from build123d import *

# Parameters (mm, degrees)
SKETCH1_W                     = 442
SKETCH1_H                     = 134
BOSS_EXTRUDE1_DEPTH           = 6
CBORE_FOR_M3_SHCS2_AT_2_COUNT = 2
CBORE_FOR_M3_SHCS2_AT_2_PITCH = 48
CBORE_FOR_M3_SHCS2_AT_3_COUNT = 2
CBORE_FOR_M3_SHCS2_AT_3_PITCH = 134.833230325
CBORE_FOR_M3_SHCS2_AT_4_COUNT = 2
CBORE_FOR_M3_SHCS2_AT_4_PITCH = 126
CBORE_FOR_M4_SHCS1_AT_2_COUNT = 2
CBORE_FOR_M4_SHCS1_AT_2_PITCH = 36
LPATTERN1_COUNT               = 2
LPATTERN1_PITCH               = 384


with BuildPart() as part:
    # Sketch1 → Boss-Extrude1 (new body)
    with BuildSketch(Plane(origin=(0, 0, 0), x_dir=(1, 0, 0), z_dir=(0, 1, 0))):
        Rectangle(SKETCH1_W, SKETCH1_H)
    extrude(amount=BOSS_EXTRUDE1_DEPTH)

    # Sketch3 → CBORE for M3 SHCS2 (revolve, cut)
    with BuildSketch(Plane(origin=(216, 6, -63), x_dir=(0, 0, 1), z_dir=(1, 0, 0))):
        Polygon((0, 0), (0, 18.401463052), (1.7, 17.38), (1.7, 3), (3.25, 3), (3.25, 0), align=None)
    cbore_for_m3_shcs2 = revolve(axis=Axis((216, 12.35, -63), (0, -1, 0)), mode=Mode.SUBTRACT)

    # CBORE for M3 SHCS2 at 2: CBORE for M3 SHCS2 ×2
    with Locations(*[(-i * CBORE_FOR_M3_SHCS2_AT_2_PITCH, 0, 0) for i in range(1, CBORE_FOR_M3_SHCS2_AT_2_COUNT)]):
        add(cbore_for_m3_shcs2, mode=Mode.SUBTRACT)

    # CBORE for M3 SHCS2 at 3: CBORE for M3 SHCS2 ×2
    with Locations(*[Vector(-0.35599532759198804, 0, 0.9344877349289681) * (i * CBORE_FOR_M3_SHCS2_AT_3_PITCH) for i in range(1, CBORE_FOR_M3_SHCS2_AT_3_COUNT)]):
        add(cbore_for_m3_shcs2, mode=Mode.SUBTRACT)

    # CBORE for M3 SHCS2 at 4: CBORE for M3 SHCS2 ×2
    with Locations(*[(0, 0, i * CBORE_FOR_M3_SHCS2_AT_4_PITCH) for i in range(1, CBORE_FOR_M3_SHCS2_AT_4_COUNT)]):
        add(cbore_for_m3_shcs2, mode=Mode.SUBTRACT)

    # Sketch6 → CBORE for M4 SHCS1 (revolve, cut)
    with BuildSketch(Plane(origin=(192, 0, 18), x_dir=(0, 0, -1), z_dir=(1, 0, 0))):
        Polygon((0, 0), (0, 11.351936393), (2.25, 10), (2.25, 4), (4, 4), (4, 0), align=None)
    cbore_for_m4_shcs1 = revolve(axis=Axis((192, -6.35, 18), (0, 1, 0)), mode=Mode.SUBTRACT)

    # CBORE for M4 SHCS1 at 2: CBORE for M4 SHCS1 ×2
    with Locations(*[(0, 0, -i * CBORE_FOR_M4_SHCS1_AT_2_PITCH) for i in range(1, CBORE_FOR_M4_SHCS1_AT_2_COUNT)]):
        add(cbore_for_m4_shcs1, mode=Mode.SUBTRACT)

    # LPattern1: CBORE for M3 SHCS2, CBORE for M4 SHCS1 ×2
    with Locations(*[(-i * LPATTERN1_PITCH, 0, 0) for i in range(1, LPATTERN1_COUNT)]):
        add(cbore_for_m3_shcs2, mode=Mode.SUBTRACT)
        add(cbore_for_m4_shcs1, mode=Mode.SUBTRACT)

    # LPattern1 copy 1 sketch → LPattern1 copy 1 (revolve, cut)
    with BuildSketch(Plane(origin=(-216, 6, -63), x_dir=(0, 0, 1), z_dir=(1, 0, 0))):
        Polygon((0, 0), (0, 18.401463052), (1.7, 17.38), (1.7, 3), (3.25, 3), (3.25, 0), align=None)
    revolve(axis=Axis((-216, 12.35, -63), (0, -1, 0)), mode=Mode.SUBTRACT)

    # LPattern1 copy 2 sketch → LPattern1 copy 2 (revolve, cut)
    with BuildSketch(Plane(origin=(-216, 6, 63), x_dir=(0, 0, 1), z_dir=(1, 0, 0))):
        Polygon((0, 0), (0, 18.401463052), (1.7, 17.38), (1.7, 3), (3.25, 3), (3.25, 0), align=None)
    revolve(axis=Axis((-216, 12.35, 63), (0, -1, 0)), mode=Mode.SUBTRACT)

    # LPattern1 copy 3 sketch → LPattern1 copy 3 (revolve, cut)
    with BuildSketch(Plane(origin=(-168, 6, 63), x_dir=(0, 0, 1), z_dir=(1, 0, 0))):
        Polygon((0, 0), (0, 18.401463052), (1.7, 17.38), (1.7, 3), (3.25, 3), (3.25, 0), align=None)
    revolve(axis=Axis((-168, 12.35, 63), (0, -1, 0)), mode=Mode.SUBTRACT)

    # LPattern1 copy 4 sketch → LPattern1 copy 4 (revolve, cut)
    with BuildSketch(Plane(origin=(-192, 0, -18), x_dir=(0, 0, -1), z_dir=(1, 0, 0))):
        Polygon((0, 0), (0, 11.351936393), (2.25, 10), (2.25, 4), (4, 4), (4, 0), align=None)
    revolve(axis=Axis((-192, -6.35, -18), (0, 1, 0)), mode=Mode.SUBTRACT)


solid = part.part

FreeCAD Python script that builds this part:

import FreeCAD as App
import Part
import Sketcher
Q = App.Units.Quantity

doc = App.newDocument("Part")
params = doc.addObject("Spreadsheet::Sheet", "Params")
for row, (alias, value) in enumerate([
    ("sketch1_width", "442 mm"),
    ("sketch1_height", "134 mm"),
    ("pad1_length", "6 mm"),
    ("sketch2_width", "3 mm"),
    ("sketch2_width2", "14.38 mm"),
    ("sketch2_height", "3.25 mm"),
    ("sketch2_height2", "1.55 mm"),
    ("groove_angle", "360 deg"),
    ("linearpattern_pitch", "48 mm"),
    ("linearpattern2_pitch", "134.83323 mm"),
    ("linearpattern3_pitch", "126 mm"),
    ("sketch3_width", "4 mm"),
    ("sketch3_width2", "6 mm"),
    ("sketch3_height", "1.75 mm"),
    ("groove2_angle", "360 deg"),
    ("linearpattern4_pitch", "36 mm"),
    ("linearpattern5_pitch", "384 mm"),
    ("sketch4_width", "3 mm"),
    ("sketch4_width2", "14.38 mm"),
    ("sketch4_height", "3.25 mm"),
    ("sketch4_height2", "1.55 mm"),
    ("groove3_angle", "360 deg"),
    ("sketch5_width", "3 mm"),
    ("sketch5_width2", "14.38 mm"),
    ("sketch5_height", "3.25 mm"),
    ("sketch5_height2", "1.55 mm"),
    ("groove4_angle", "360 deg"),
    ("sketch6_width", "3 mm"),
    ("sketch6_width2", "14.38 mm"),
    ("sketch6_height", "3.25 mm"),
    ("sketch6_height2", "1.55 mm"),
    ("groove5_angle", "360 deg"),
    ("sketch7_width", "4 mm"),
    ("sketch7_width2", "6 mm"),
    ("sketch7_height", "1.75 mm"),
    ("groove6_angle", "360 deg"),
], start=1):
    params.set(f"A{row}", alias)
    params.set(f"B{row}", "=" + value)
    params.setAlias(f"B{row}", alias)

body = doc.addObject("PartDesign::Body", "Body")

sketch1 = doc.addObject("Sketcher::SketchObject", "Sketch")
body.addObject(sketch1)
sketch1.AttachmentSupport = (doc.XZ_Plane, [""])
sketch1.MapMode = "FlatFace"
sketch1.addGeometry([
    Part.LineSegment(App.Vector(-221, -67, 0), App.Vector(-221, 67, 0)),
    Part.LineSegment(App.Vector(-221, 67, 0), App.Vector(221, 67, 0)),
    Part.LineSegment(App.Vector(221, 67, 0), App.Vector(221, -67, 0)),
    Part.LineSegment(App.Vector(221, -67, 0), App.Vector(-221, -67, 0)),
], False)
sketch1.addConstraint([
    Sketcher.Constraint("Coincident", 0, 2, 1, 1),
    Sketcher.Constraint("Coincident", 1, 2, 2, 1),
    Sketcher.Constraint("Coincident", 2, 2, 3, 1),
    Sketcher.Constraint("Coincident", 3, 2, 0, 1),
    Sketcher.Constraint("Vertical", 0),
    Sketcher.Constraint("Horizontal", 1),
    Sketcher.Constraint("Vertical", 2),
    Sketcher.Constraint("Horizontal", 3),
    Sketcher.Constraint("Symmetric", 0, 2, 2, 2, -1, 1),
    Sketcher.Constraint("DistanceX", 1, 1, 1, 2, Q("442 mm")),
    Sketcher.Constraint("DistanceY", 0, 1, 0, 2, Q("134 mm")),
])
sketch1.setExpression("Constraints[9]", "Params.sketch1_width")
sketch1.setExpression("Constraints[10]", "Params.sketch1_height")
pad1 = doc.addObject("PartDesign::Pad", "Pad")
body.addObject(pad1)
pad1.Profile = sketch1
pad1.setExpression("Length", "Params.pad1_length")
pad1.Reversed = True

sketch2 = doc.addObject("Sketcher::SketchObject", "Sketch001")
body.addObject(sketch2)
sketch2.AttachmentSupport = (doc.YZ_Plane, [""])
sketch2.MapMode = "FlatFace"
sketch2.AttachmentOffset = App.Placement(App.Vector(0, 0, 216), App.Rotation())
sketch2.addGeometry([
    Part.LineSegment(App.Vector(-12.4, -63, 0), App.Vector(6, -63, 0)),
    Part.LineSegment(App.Vector(6, -63, 0), App.Vector(6, -59.8, 0)),
    Part.LineSegment(App.Vector(6, -59.8, 0), App.Vector(3, -59.8, 0)),
    Part.LineSegment(App.Vector(3, -59.8, 0), App.Vector(3, -61.3, 0)),
    Part.LineSegment(App.Vector(3, -61.3, 0), App.Vector(-11.4, -61.3, 0)),
    Part.LineSegment(App.Vector(-11.4, -61.3, 0), App.Vector(-12.4, -63, 0)),
], False)
sketch2.addGeometry(Part.LineSegment(App.Vector(6, -63, 0), App.Vector(-12.4, -63, 0)), True)
sketch2.addConstraint([
    Sketcher.Constraint("Coincident", 0, 2, 1, 1),
    Sketcher.Constraint("Coincident", 1, 2, 2, 1),
    Sketcher.Constraint("Coincident", 2, 2, 3, 1),
    Sketcher.Constraint("Coincident", 3, 2, 4, 1),
    Sketcher.Constraint("Coincident", 4, 2, 5, 1),
    Sketcher.Constraint("Coincident", 5, 2, 0, 1),
    Sketcher.Constraint("Horizontal", 0),
    Sketcher.Constraint("Vertical", 1),
    Sketcher.Constraint("Horizontal", 2),
    Sketcher.Constraint("Vertical", 3),
    Sketcher.Constraint("Horizontal", 4),
    Sketcher.Constraint("Horizontal", 6),
    Sketcher.Constraint("Coincident", 6, 1, 0, 2),
    Sketcher.Constraint("Equal", 0, 6),
    Sketcher.Constraint("DistanceX", 2, 2, 2, 1, Q("3 mm")),
    Sketcher.Constraint("Angle", 5, Q("-121 deg")),
    Sketcher.Constraint("DistanceX", -1, 1, 0, 2, Q("6 mm")),
    Sketcher.Constraint("DistanceY", 0, 2, -1, 1, Q("63 mm")),
    Sketcher.Constraint("DistanceX", 4, 2, 4, 1, Q("14.38 mm")),
    Sketcher.Constraint("DistanceY", 1, 1, 1, 2, Q("3.25 mm")),
    Sketcher.Constraint("DistanceY", 3, 2, 3, 1, Q("1.55 mm")),
])
sketch2.setExpression("Constraints[14]", "Params.sketch2_width")
sketch2.setExpression("Constraints[18]", "Params.sketch2_width2")
sketch2.setExpression("Constraints[19]", "Params.sketch2_height")
sketch2.setExpression("Constraints[20]", "Params.sketch2_height2")
groove = doc.addObject("PartDesign::Groove", "Groove")
body.addObject(groove)
groove.Profile = sketch2
groove.ReferenceAxis = (sketch2, ["Axis0"])
groove.setExpression("Angle", "Params.groove_angle")
doc.recompute()

linearpattern = doc.addObject("PartDesign::LinearPattern", "LinearPattern")
body.addObject(linearpattern)
linearpattern.Originals = [groove]
linearpattern.Direction = (doc.X_Axis, [""])
linearpattern.Mode = "offset"
linearpattern.setExpression("Offset", "Params.linearpattern_pitch")
linearpattern.Occurrences = 2
linearpattern.Reversed = True
body.Tip = linearpattern
doc.recompute()

datumline = doc.addObject("PartDesign::Line", "DatumLine")
body.addObject(datumline)
datumline.Placement = App.Placement(App.Vector(0, 0, 0), App.Rotation(App.Vector(0, 0, 1), App.Vector(-0.355995328, 0, 0.934487735)))
linearpattern2 = doc.addObject("PartDesign::LinearPattern", "LinearPattern001")
body.addObject(linearpattern2)
linearpattern2.Originals = [groove]
linearpattern2.Direction = (datumline, [""])
linearpattern2.Mode = "offset"
linearpattern2.setExpression("Offset", "Params.linearpattern2_pitch")
linearpattern2.Occurrences = 2
body.Tip = linearpattern2
doc.recompute()

linearpattern3 = doc.addObject("PartDesign::LinearPattern", "LinearPattern002")
body.addObject(linearpattern3)
linearpattern3.Originals = [groove]
linearpattern3.Direction = (doc.Z_Axis, [""])
linearpattern3.Mode = "offset"
linearpattern3.setExpression("Offset", "Params.linearpattern3_pitch")
linearpattern3.Occurrences = 2
body.Tip = linearpattern3

sketch3 = doc.addObject("Sketcher::SketchObject", "Sketch002")
body.addObject(sketch3)
sketch3.AttachmentSupport = (doc.YZ_Plane, [""])
sketch3.MapMode = "FlatFace"
sketch3.AttachmentOffset = App.Placement(App.Vector(0, 0, 192), App.Rotation())
sketch3.addGeometry([
    Part.LineSegment(App.Vector(11.4, 18, 0), App.Vector(0, 18, 0)),
    Part.LineSegment(App.Vector(0, 18, 0), App.Vector(0, 14, 0)),
    Part.LineSegment(App.Vector(0, 14, 0), App.Vector(4, 14, 0)),
    Part.LineSegment(App.Vector(4, 14, 0), App.Vector(4, 15.8, 0)),
    Part.LineSegment(App.Vector(4, 15.8, 0), App.Vector(10, 15.8, 0)),
    Part.LineSegment(App.Vector(10, 15.8, 0), App.Vector(11.4, 18, 0)),
], False)
sketch3.addGeometry(Part.LineSegment(App.Vector(0, 18, 0), App.Vector(11.4, 18, 0)), True)
sketch3.addConstraint([
    Sketcher.Constraint("Coincident", 0, 2, 1, 1),
    Sketcher.Constraint("Coincident", 1, 2, 2, 1),
    Sketcher.Constraint("Coincident", 2, 2, 3, 1),
    Sketcher.Constraint("Coincident", 3, 2, 4, 1),
    Sketcher.Constraint("Coincident", 4, 2, 5, 1),
    Sketcher.Constraint("Coincident", 5, 2, 0, 1),
    Sketcher.Constraint("Horizontal", 0),
    Sketcher.Constraint("Vertical", 1),
    Sketcher.Constraint("Horizontal", 2),
    Sketcher.Constraint("Vertical", 3),
    Sketcher.Constraint("Horizontal", 4),
    Sketcher.Constraint("Horizontal", 6),
    Sketcher.Constraint("Coincident", 6, 1, 0, 2),
    Sketcher.Constraint("PointOnObject", 0, 2, -2),
    Sketcher.Constraint("Equal", 0, 6),
    Sketcher.Constraint("Equal", 2, 1),
    Sketcher.Constraint("DistanceX", 2, 1, 2, 2, Q("4 mm")),
    Sketcher.Constraint("DistanceX", 4, 1, 4, 2, Q("6 mm")),
    Sketcher.Constraint("Angle", 5, Q("59 deg")),
    Sketcher.Constraint("DistanceY", -1, 1, 0, 2, Q("18 mm")),
    Sketcher.Constraint("DistanceY", 3, 1, 3, 2, Q("1.75 mm")),
])
sketch3.setExpression("Constraints[16]", "Params.sketch3_width")
sketch3.setExpression("Constraints[17]", "Params.sketch3_width2")
sketch3.setExpression("Constraints[20]", "Params.sketch3_height")
groove2 = doc.addObject("PartDesign::Groove", "Groove001")
body.addObject(groove2)
groove2.Profile = sketch3
groove2.ReferenceAxis = (sketch3, ["Axis0"])
groove2.setExpression("Angle", "Params.groove2_angle")
doc.recompute()

linearpattern4 = doc.addObject("PartDesign::LinearPattern", "LinearPattern003")
body.addObject(linearpattern4)
linearpattern4.Originals = [groove2]
linearpattern4.Direction = (doc.Z_Axis, [""])
linearpattern4.Mode = "offset"
linearpattern4.setExpression("Offset", "Params.linearpattern4_pitch")
linearpattern4.Occurrences = 2
linearpattern4.Reversed = True
body.Tip = linearpattern4
doc.recompute()

linearpattern5 = doc.addObject("PartDesign::LinearPattern", "LinearPattern004")
body.addObject(linearpattern5)
linearpattern5.Originals = [groove, groove2]
linearpattern5.Direction = (doc.X_Axis, [""])
linearpattern5.Mode = "offset"
linearpattern5.setExpression("Offset", "Params.linearpattern5_pitch")
linearpattern5.Occurrences = 2
linearpattern5.Reversed = True
body.Tip = linearpattern5

sketch4 = doc.addObject("Sketcher::SketchObject", "Sketch003")
body.addObject(sketch4)
sketch4.AttachmentSupport = (doc.YZ_Plane, [""])
sketch4.MapMode = "FlatFace"
sketch4.AttachmentOffset = App.Placement(App.Vector(0, 0, -216), App.Rotation())
sketch4.addGeometry([
    Part.LineSegment(App.Vector(-12.4, -63, 0), App.Vector(6, -63, 0)),
    Part.LineSegment(App.Vector(6, -63, 0), App.Vector(6, -59.8, 0)),
    Part.LineSegment(App.Vector(6, -59.8, 0), App.Vector(3, -59.8, 0)),
    Part.LineSegment(App.Vector(3, -59.8, 0), App.Vector(3, -61.3, 0)),
    Part.LineSegment(App.Vector(3, -61.3, 0), App.Vector(-11.4, -61.3, 0)),
    Part.LineSegment(App.Vector(-11.4, -61.3, 0), App.Vector(-12.4, -63, 0)),
], False)
sketch4.addGeometry(Part.LineSegment(App.Vector(6, -63, 0), App.Vector(-12.4, -63, 0)), True)
sketch4.addConstraint([
    Sketcher.Constraint("Coincident", 0, 2, 1, 1),
    Sketcher.Constraint("Coincident", 1, 2, 2, 1),
    Sketcher.Constraint("Coincident", 2, 2, 3, 1),
    Sketcher.Constraint("Coincident", 3, 2, 4, 1),
    Sketcher.Constraint("Coincident", 4, 2, 5, 1),
    Sketcher.Constraint("Coincident", 5, 2, 0, 1),
    Sketcher.Constraint("Horizontal", 0),
    Sketcher.Constraint("Vertical", 1),
    Sketcher.Constraint("Horizontal", 2),
    Sketcher.Constraint("Vertical", 3),
    Sketcher.Constraint("Horizontal", 4),
    Sketcher.Constraint("Horizontal", 6),
    Sketcher.Constraint("Coincident", 6, 1, 0, 2),
    Sketcher.Constraint("Equal", 0, 6),
    Sketcher.Constraint("DistanceX", 2, 2, 2, 1, Q("3 mm")),
    Sketcher.Constraint("Angle", 5, Q("-121 deg")),
    Sketcher.Constraint("DistanceX", -1, 1, 0, 2, Q("6 mm")),
    Sketcher.Constraint("DistanceY", 0, 2, -1, 1, Q("63 mm")),
    Sketcher.Constraint("DistanceX", 4, 2, 4, 1, Q("14.38 mm")),
    Sketcher.Constraint("DistanceY", 1, 1, 1, 2, Q("3.25 mm")),
    Sketcher.Constraint("DistanceY", 3, 2, 3, 1, Q("1.55 mm")),
])
sketch4.setExpression("Constraints[14]", "Params.sketch4_width")
sketch4.setExpression("Constraints[18]", "Params.sketch4_width2")
sketch4.setExpression("Constraints[19]", "Params.sketch4_height")
sketch4.setExpression("Constraints[20]", "Params.sketch4_height2")
groove3 = doc.addObject("PartDesign::Groove", "Groove002")
body.addObject(groove3)
groove3.Profile = sketch4
groove3.ReferenceAxis = (sketch4, ["Axis0"])
groove3.setExpression("Angle", "Params.groove3_angle")

sketch5 = doc.addObject("Sketcher::SketchObject", "Sketch004")
body.addObject(sketch5)
sketch5.AttachmentSupport = (doc.YZ_Plane, [""])
sketch5.MapMode = "FlatFace"
sketch5.AttachmentOffset = App.Placement(App.Vector(0, 0, -216), App.Rotation())
sketch5.addGeometry([
    Part.LineSegment(App.Vector(-12.4, 63, 0), App.Vector(6, 63, 0)),
    Part.LineSegment(App.Vector(6, 63, 0), App.Vector(6, 66.2, 0)),
    Part.LineSegment(App.Vector(6, 66.2, 0), App.Vector(3, 66.2, 0)),
    Part.LineSegment(App.Vector(3, 66.2, 0), App.Vector(3, 64.7, 0)),
    Part.LineSegment(App.Vector(3, 64.7, 0), App.Vector(-11.4, 64.7, 0)),
    Part.LineSegment(App.Vector(-11.4, 64.7, 0), App.Vector(-12.4, 63, 0)),
], False)
sketch5.addGeometry(Part.LineSegment(App.Vector(6, 63, 0), App.Vector(-12.4, 63, 0)), True)
sketch5.addConstraint([
    Sketcher.Constraint("Coincident", 0, 2, 1, 1),
    Sketcher.Constraint("Coincident", 1, 2, 2, 1),
    Sketcher.Constraint("Coincident", 2, 2, 3, 1),
    Sketcher.Constraint("Coincident", 3, 2, 4, 1),
    Sketcher.Constraint("Coincident", 4, 2, 5, 1),
    Sketcher.Constraint("Coincident", 5, 2, 0, 1),
    Sketcher.Constraint("Horizontal", 0),
    Sketcher.Constraint("Vertical", 1),
    Sketcher.Constraint("Horizontal", 2),
    Sketcher.Constraint("Vertical", 3),
    Sketcher.Constraint("Horizontal", 4),
    Sketcher.Constraint("Horizontal", 6),
    Sketcher.Constraint("Coincident", 6, 1, 0, 2),
    Sketcher.Constraint("Equal", 0, 6),
    Sketcher.Constraint("DistanceX", 2, 2, 2, 1, Q("3 mm")),
    Sketcher.Constraint("Angle", 5, Q("-121 deg")),
    Sketcher.Constraint("DistanceX", -1, 1, 0, 2, Q("6 mm")),
    Sketcher.Constraint("DistanceY", -1, 1, 0, 2, Q("63 mm")),
    Sketcher.Constraint("DistanceX", 4, 2, 4, 1, Q("14.38 mm")),
    Sketcher.Constraint("DistanceY", 1, 1, 1, 2, Q("3.25 mm")),
    Sketcher.Constraint("DistanceY", 3, 2, 3, 1, Q("1.55 mm")),
])
sketch5.setExpression("Constraints[14]", "Params.sketch5_width")
sketch5.setExpression("Constraints[18]", "Params.sketch5_width2")
sketch5.setExpression("Constraints[19]", "Params.sketch5_height")
sketch5.setExpression("Constraints[20]", "Params.sketch5_height2")
groove4 = doc.addObject("PartDesign::Groove", "Groove003")
body.addObject(groove4)
groove4.Profile = sketch5
groove4.ReferenceAxis = (sketch5, ["Axis0"])
groove4.setExpression("Angle", "Params.groove4_angle")

sketch6 = doc.addObject("Sketcher::SketchObject", "Sketch005")
body.addObject(sketch6)
sketch6.AttachmentSupport = (doc.YZ_Plane, [""])
sketch6.MapMode = "FlatFace"
sketch6.AttachmentOffset = App.Placement(App.Vector(0, 0, -168), App.Rotation())
sketch6.addGeometry([
    Part.LineSegment(App.Vector(-12.4, 63, 0), App.Vector(6, 63, 0)),
    Part.LineSegment(App.Vector(6, 63, 0), App.Vector(6, 66.2, 0)),
    Part.LineSegment(App.Vector(6, 66.2, 0), App.Vector(3, 66.2, 0)),
    Part.LineSegment(App.Vector(3, 66.2, 0), App.Vector(3, 64.7, 0)),
    Part.LineSegment(App.Vector(3, 64.7, 0), App.Vector(-11.4, 64.7, 0)),
    Part.LineSegment(App.Vector(-11.4, 64.7, 0), App.Vector(-12.4, 63, 0)),
], False)
sketch6.addGeometry(Part.LineSegment(App.Vector(6, 63, 0), App.Vector(-12.4, 63, 0)), True)
sketch6.addConstraint([
    Sketcher.Constraint("Coincident", 0, 2, 1, 1),
    Sketcher.Constraint("Coincident", 1, 2, 2, 1),
    Sketcher.Constraint("Coincident", 2, 2, 3, 1),
    Sketcher.Constraint("Coincident", 3, 2, 4, 1),
    Sketcher.Constraint("Coincident", 4, 2, 5, 1),
    Sketcher.Constraint("Coincident", 5, 2, 0, 1),
    Sketcher.Constraint("Horizontal", 0),
    Sketcher.Constraint("Vertical", 1),
    Sketcher.Constraint("Horizontal", 2),
    Sketcher.Constraint("Vertical", 3),
    Sketcher.Constraint("Horizontal", 4),
    Sketcher.Constraint("Horizontal", 6),
    Sketcher.Constraint("Coincident", 6, 1, 0, 2),
    Sketcher.Constraint("Equal", 0, 6),
    Sketcher.Constraint("DistanceX", 2, 2, 2, 1, Q("3 mm")),
    Sketcher.Constraint("Angle", 5, Q("-121 deg")),
    Sketcher.Constraint("DistanceX", -1, 1, 0, 2, Q("6 mm")),
    Sketcher.Constraint("DistanceY", -1, 1, 0, 2, Q("63 mm")),
    Sketcher.Constraint("DistanceX", 4, 2, 4, 1, Q("14.38 mm")),
    Sketcher.Constraint("DistanceY", 1, 1, 1, 2, Q("3.25 mm")),
    Sketcher.Constraint("DistanceY", 3, 2, 3, 1, Q("1.55 mm")),
])
sketch6.setExpression("Constraints[14]", "Params.sketch6_width")
sketch6.setExpression("Constraints[18]", "Params.sketch6_width2")
sketch6.setExpression("Constraints[19]", "Params.sketch6_height")
sketch6.setExpression("Constraints[20]", "Params.sketch6_height2")
groove5 = doc.addObject("PartDesign::Groove", "Groove004")
body.addObject(groove5)
groove5.Profile = sketch6
groove5.ReferenceAxis = (sketch6, ["Axis0"])
groove5.setExpression("Angle", "Params.groove5_angle")

sketch7 = doc.addObject("Sketcher::SketchObject", "Sketch006")
body.addObject(sketch7)
sketch7.AttachmentSupport = (doc.YZ_Plane, [""])
sketch7.MapMode = "FlatFace"
sketch7.AttachmentOffset = App.Placement(App.Vector(0, 0, -192), App.Rotation())
sketch7.addGeometry([
    Part.LineSegment(App.Vector(11.4, -18, 0), App.Vector(0, -18, 0)),
    Part.LineSegment(App.Vector(0, -18, 0), App.Vector(0, -22, 0)),
    Part.LineSegment(App.Vector(0, -22, 0), App.Vector(4, -22, 0)),
    Part.LineSegment(App.Vector(4, -22, 0), App.Vector(4, -20.2, 0)),
    Part.LineSegment(App.Vector(4, -20.2, 0), App.Vector(10, -20.2, 0)),
    Part.LineSegment(App.Vector(10, -20.2, 0), App.Vector(11.4, -18, 0)),
], False)
sketch7.addGeometry(Part.LineSegment(App.Vector(0, -18, 0), App.Vector(11.4, -18, 0)), True)
sketch7.addConstraint([
    Sketcher.Constraint("Coincident", 0, 2, 1, 1),
    Sketcher.Constraint("Coincident", 1, 2, 2, 1),
    Sketcher.Constraint("Coincident", 2, 2, 3, 1),
    Sketcher.Constraint("Coincident", 3, 2, 4, 1),
    Sketcher.Constraint("Coincident", 4, 2, 5, 1),
    Sketcher.Constraint("Coincident", 5, 2, 0, 1),
    Sketcher.Constraint("Horizontal", 0),
    Sketcher.Constraint("Vertical", 1),
    Sketcher.Constraint("Horizontal", 2),
    Sketcher.Constraint("Vertical", 3),
    Sketcher.Constraint("Horizontal", 4),
    Sketcher.Constraint("Horizontal", 6),
    Sketcher.Constraint("Coincident", 6, 1, 0, 2),
    Sketcher.Constraint("PointOnObject", 0, 2, -2),
    Sketcher.Constraint("Equal", 0, 6),
    Sketcher.Constraint("Equal", 2, 1),
    Sketcher.Constraint("DistanceX", 2, 1, 2, 2, Q("4 mm")),
    Sketcher.Constraint("DistanceX", 4, 1, 4, 2, Q("6 mm")),
    Sketcher.Constraint("Angle", 5, Q("59 deg")),
    Sketcher.Constraint("DistanceY", 0, 2, -1, 1, Q("18 mm")),
    Sketcher.Constraint("DistanceY", 3, 1, 3, 2, Q("1.75 mm")),
])
sketch7.setExpression("Constraints[16]", "Params.sketch7_width")
sketch7.setExpression("Constraints[17]", "Params.sketch7_width2")
sketch7.setExpression("Constraints[20]", "Params.sketch7_height")
groove6 = doc.addObject("PartDesign::Groove", "Groove005")
body.addObject(groove6)
groove6.Profile = sketch7
groove6.ReferenceAxis = (sketch7, ["Axis0"])
groove6.setExpression("Angle", "Params.groove6_angle")

doc.recompute()
